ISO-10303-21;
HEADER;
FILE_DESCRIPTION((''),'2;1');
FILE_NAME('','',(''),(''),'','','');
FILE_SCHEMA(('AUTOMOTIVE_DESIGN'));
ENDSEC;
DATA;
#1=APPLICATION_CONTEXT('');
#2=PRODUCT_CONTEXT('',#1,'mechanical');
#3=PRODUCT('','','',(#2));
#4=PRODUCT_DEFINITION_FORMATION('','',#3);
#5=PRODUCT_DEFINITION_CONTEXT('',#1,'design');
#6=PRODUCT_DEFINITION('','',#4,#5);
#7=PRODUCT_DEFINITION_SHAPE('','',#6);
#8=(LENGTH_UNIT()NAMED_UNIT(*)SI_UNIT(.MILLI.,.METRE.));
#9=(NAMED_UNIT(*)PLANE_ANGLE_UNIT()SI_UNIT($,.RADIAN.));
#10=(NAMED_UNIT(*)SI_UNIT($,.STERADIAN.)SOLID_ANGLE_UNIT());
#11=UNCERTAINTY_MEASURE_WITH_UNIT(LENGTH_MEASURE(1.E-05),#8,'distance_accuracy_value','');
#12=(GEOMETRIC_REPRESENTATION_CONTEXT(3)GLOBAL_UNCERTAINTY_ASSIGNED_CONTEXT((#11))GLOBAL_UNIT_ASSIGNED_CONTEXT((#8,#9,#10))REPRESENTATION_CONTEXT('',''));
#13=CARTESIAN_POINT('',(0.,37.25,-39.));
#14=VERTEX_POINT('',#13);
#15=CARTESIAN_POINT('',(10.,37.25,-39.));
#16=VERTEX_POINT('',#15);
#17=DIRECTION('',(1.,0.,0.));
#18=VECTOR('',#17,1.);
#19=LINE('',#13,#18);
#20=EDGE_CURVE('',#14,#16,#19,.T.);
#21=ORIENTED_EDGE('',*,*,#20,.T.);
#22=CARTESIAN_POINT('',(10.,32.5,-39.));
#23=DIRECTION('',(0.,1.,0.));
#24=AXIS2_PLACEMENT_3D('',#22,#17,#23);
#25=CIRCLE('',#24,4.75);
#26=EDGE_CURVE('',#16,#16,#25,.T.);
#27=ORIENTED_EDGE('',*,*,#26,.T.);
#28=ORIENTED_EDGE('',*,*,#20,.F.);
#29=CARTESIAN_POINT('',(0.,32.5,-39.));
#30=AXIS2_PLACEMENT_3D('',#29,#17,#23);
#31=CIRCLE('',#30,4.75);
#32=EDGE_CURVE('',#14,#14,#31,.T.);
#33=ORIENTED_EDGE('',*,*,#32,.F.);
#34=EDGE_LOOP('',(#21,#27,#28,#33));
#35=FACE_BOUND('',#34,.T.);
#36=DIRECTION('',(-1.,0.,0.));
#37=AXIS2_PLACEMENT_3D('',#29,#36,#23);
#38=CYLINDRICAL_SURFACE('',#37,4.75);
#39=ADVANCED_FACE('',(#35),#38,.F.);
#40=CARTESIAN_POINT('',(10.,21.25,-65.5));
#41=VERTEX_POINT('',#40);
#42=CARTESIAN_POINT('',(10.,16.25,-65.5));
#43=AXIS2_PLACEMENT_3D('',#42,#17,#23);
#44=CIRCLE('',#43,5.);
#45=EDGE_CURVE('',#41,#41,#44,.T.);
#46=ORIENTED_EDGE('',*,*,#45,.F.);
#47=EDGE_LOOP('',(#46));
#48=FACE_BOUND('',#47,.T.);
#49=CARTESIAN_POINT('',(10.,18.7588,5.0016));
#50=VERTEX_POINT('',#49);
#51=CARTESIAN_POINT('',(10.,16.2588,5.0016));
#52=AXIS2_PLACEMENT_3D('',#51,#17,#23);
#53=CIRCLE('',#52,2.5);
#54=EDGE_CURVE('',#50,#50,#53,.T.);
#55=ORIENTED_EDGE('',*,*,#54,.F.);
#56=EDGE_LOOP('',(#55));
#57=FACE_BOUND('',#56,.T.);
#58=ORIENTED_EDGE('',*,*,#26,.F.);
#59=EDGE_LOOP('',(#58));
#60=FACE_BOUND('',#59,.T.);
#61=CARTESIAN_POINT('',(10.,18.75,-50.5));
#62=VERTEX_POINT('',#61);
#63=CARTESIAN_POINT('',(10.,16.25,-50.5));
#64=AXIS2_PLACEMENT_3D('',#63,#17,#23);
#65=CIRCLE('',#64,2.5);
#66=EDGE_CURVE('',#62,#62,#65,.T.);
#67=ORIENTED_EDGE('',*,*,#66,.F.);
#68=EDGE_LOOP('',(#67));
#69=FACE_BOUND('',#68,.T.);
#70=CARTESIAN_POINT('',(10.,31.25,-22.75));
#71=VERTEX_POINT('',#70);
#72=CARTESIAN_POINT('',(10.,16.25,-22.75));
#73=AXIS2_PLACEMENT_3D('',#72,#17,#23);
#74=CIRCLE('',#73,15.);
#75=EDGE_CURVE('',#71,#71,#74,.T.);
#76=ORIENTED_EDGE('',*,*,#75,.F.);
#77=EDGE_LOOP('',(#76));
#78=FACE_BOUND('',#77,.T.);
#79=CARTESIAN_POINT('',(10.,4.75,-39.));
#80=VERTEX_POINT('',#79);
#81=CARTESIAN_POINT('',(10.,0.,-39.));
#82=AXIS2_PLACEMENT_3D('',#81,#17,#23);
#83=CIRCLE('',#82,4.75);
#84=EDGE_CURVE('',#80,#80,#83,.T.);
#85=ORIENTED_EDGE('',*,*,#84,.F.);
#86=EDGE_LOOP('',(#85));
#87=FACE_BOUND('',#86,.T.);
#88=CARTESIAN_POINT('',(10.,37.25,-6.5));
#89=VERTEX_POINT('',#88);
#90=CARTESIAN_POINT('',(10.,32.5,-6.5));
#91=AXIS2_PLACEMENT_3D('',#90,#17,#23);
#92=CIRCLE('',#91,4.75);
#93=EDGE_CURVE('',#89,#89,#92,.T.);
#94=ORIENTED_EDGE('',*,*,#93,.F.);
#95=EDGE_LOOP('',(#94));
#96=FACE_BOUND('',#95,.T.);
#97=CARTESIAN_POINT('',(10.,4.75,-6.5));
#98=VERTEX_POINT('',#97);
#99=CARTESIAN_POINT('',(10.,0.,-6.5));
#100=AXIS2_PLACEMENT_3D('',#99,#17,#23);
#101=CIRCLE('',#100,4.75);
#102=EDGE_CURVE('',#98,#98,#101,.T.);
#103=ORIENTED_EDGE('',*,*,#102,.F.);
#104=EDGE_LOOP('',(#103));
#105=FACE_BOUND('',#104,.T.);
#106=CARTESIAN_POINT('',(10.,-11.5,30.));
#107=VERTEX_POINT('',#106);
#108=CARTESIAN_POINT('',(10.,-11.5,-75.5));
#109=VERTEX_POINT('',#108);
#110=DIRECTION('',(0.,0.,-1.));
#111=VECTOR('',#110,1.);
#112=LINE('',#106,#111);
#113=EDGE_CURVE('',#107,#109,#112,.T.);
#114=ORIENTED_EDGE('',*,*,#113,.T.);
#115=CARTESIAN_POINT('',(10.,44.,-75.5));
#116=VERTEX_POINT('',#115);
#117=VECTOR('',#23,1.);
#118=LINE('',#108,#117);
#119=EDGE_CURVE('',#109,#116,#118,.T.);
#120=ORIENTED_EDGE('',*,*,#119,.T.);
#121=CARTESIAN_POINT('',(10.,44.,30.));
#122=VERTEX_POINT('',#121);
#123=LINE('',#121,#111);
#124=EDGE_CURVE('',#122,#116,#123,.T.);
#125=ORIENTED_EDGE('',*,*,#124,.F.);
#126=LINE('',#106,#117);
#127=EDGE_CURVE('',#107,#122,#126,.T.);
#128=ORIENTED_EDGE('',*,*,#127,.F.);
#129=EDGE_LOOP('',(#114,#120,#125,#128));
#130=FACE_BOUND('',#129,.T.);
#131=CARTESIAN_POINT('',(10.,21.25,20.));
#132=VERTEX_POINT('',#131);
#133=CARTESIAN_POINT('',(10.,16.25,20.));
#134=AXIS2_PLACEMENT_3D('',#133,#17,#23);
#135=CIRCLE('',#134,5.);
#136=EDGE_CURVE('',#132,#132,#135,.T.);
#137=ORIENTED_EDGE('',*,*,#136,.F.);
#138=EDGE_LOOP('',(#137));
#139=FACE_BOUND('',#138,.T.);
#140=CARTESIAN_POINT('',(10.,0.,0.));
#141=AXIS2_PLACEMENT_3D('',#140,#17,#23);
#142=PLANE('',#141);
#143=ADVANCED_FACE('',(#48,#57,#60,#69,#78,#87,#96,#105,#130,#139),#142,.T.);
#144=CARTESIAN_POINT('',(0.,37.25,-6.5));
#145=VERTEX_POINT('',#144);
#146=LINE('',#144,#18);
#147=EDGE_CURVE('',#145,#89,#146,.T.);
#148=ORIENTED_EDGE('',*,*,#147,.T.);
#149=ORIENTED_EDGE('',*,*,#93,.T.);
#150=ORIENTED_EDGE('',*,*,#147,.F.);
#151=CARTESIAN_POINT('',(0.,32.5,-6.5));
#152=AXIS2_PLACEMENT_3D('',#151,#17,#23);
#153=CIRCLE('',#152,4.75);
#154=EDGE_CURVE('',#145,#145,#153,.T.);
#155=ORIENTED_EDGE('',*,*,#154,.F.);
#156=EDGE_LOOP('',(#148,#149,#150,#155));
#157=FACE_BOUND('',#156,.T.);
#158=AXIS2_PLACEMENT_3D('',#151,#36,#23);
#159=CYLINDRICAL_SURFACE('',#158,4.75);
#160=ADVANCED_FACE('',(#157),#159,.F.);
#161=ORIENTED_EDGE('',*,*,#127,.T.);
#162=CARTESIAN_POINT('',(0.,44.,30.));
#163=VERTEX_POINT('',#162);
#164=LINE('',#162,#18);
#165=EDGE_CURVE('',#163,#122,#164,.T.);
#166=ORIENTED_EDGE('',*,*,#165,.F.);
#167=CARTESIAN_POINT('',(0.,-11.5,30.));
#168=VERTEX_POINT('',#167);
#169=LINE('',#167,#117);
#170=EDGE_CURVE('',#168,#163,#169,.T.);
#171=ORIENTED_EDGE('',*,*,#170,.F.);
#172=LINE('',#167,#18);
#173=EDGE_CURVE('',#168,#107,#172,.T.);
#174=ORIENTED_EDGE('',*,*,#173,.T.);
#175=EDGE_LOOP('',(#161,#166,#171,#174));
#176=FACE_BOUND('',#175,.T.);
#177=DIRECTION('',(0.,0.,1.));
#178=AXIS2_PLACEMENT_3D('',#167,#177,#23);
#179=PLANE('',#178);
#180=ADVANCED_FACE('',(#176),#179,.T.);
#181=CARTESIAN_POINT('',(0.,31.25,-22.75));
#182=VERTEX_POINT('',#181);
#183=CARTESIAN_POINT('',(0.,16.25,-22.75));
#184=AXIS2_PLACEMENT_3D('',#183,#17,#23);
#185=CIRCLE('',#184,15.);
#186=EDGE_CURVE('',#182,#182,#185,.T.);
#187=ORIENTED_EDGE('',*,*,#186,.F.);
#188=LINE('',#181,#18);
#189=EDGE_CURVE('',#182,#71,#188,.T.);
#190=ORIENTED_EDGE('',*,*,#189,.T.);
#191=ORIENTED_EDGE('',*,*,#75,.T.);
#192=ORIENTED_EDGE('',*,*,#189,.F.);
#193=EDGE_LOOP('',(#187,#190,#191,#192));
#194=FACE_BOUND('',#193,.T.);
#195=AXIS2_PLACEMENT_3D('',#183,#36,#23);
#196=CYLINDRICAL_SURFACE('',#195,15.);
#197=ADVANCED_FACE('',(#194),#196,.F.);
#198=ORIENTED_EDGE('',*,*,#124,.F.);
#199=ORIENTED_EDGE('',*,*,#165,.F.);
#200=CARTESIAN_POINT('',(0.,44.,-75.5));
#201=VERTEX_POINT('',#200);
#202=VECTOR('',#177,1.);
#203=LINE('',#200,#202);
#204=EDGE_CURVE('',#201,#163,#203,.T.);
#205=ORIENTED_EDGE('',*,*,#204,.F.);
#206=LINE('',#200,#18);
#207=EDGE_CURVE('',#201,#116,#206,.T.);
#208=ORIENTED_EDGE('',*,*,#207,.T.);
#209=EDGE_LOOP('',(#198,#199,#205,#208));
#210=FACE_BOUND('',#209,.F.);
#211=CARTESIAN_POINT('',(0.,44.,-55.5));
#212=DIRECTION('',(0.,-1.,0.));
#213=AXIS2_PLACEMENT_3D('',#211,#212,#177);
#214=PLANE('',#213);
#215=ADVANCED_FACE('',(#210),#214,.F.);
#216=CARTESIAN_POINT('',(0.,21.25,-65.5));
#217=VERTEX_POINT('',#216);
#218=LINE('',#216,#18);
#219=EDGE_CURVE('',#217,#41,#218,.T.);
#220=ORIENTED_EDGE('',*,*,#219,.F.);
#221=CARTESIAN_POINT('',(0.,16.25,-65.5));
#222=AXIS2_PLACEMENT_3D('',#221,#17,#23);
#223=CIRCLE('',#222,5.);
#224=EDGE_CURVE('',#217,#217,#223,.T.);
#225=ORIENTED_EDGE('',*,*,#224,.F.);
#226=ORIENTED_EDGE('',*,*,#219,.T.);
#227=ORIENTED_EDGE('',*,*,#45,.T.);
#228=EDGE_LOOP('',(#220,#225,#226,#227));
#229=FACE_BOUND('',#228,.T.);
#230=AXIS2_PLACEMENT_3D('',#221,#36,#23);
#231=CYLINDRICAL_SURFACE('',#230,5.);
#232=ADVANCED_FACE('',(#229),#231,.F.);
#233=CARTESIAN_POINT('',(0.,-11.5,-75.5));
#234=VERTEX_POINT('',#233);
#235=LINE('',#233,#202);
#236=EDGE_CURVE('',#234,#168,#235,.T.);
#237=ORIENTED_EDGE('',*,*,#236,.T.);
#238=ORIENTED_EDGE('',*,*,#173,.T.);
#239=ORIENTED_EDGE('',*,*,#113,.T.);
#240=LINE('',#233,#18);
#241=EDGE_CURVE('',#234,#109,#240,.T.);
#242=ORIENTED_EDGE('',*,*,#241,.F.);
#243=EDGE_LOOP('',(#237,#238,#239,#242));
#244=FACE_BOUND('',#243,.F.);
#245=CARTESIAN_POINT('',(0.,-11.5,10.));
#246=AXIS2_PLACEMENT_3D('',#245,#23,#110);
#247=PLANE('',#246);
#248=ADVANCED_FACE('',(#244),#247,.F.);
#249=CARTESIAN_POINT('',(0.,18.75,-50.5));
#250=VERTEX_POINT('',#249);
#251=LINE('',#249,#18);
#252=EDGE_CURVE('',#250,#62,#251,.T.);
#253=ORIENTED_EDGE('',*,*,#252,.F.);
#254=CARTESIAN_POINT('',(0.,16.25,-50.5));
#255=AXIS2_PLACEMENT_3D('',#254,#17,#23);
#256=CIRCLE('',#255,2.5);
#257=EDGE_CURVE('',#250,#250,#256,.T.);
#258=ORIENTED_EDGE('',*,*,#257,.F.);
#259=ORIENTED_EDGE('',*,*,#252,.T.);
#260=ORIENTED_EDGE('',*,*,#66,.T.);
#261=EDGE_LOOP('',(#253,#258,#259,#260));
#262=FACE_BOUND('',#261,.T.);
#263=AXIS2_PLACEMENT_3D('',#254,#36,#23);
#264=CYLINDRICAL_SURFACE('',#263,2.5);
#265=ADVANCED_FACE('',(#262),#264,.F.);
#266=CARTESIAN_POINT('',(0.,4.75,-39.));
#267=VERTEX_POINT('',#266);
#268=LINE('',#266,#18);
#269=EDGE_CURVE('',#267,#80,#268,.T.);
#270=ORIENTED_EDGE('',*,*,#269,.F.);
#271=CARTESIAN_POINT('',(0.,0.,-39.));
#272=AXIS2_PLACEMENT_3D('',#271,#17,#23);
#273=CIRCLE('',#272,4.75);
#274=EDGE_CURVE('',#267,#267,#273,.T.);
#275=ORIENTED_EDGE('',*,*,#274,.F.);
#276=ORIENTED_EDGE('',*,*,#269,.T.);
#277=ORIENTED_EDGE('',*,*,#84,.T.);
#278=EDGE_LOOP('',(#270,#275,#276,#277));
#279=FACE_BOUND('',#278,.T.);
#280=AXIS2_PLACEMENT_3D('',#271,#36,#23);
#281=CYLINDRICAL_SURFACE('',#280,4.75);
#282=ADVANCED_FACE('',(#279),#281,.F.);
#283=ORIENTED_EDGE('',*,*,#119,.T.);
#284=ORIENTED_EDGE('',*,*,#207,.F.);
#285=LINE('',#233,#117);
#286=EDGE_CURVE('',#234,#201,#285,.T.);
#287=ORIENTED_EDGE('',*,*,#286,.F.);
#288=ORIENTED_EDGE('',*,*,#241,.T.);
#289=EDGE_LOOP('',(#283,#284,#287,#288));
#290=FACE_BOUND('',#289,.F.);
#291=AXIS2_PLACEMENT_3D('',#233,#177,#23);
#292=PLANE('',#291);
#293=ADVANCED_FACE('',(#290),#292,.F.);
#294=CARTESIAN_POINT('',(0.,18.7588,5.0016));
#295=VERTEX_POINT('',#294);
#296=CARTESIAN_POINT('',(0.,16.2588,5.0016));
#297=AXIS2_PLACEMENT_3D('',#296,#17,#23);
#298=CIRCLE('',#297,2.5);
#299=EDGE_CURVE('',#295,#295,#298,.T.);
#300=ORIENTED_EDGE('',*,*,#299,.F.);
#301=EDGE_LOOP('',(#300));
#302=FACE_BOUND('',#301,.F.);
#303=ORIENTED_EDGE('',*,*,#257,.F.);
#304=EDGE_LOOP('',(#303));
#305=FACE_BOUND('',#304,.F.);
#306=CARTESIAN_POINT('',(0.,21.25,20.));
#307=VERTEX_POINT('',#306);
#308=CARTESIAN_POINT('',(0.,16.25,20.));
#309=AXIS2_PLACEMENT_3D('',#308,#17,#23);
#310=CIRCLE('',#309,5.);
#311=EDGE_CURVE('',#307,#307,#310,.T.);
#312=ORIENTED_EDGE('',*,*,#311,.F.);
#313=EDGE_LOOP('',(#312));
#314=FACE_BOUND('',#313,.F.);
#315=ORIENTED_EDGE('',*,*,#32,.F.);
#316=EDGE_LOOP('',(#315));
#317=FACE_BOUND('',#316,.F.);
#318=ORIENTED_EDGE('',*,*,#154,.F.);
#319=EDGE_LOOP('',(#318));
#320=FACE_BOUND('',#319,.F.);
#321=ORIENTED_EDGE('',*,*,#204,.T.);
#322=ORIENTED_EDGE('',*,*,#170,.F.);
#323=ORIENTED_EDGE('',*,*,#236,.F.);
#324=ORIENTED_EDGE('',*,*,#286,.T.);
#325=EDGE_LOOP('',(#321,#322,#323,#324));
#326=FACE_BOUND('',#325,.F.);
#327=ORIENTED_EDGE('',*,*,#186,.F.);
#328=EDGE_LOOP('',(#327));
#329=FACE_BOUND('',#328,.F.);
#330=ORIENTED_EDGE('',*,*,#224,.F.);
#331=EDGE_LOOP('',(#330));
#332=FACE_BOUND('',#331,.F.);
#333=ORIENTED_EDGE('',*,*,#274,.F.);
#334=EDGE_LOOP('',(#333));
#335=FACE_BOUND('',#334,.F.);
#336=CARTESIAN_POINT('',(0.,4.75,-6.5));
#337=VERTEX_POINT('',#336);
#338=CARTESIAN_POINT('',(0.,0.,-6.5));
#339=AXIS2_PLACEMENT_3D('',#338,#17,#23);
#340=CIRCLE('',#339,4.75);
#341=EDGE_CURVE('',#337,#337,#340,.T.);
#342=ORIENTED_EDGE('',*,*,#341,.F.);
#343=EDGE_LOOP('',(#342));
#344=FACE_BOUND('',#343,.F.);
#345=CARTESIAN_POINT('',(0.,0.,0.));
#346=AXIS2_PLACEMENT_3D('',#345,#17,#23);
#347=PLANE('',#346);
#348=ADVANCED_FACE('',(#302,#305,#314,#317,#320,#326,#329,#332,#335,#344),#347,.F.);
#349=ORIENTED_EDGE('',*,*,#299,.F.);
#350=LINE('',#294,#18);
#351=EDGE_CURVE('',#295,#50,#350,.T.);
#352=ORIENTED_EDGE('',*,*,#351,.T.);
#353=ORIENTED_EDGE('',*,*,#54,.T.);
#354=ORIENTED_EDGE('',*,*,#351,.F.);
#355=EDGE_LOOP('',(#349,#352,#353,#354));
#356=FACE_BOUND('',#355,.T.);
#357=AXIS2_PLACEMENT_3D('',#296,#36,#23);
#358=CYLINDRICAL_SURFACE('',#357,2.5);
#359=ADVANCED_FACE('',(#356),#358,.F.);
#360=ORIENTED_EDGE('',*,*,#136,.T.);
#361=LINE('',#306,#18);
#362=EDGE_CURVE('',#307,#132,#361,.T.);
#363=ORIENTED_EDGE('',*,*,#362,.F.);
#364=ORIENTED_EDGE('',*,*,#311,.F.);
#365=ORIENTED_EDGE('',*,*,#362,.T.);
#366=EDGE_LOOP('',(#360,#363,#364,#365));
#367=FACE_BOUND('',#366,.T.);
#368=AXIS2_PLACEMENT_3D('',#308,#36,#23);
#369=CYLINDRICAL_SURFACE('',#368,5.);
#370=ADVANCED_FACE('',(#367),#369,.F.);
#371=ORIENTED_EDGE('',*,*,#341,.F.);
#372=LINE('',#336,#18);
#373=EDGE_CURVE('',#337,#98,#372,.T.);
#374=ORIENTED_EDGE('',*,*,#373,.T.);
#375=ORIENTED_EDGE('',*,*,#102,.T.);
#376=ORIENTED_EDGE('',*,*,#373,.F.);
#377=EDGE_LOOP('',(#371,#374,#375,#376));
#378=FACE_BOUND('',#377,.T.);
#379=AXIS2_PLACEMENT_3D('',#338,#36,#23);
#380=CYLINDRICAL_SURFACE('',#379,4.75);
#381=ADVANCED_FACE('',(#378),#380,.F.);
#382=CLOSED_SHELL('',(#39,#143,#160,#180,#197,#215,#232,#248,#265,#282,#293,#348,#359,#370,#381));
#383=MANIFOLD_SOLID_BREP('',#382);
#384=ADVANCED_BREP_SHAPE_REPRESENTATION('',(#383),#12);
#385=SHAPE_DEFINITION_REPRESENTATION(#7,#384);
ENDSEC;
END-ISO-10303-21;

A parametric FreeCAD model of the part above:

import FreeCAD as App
import Part
import Sketcher

V = App.Vector

doc = App.newDocument("Part")
body = doc.addObject("PartDesign::Body", "Body")

sketch1 = body.newObject("Sketcher::SketchObject", "Sketch")
sketch1.AttachmentSupport = (doc.getObject("YZ_Plane"), [""])
sketch1.MapMode = "FlatFace"
sketch1.addGeometry(Part.LineSegment(V(44, 30, 0), V(-11.5, 30, 0)), False)
sketch1.addGeometry(Part.LineSegment(V(-11.5, 30, 0), V(-11.5, -75.5, 0)), False)
sketch1.addGeometry(Part.LineSegment(V(-11.5, -75.5, 0), V(44, -75.5, 0)), False)
sketch1.addGeometry(Part.LineSegment(V(44, -75.5, 0), V(44, 30, 0)), False)
sketch1.addGeometry(Part.Circle(V(0, -39, 0), V(0, 0, 1), 4.75), False)
sketch1.addGeometry(Part.Circle(V(16.25, -50.5, 0), V(0, 0, 1), 2.5), False)
sketch1.addGeometry(Part.Circle(V(32.5, -39, 0), V(0, 0, 1), 4.75), False)
sketch1.addGeometry(Part.Circle(V(0, -6.5, 0), V(0, 0, 1), 4.75), False)
sketch1.addGeometry(Part.Circle(V(16.25, -22.75, 0), V(0, 0, 1), 15), False)
sketch1.addGeometry(Part.Circle(V(32.5, -6.5, 0), V(0, 0, 1), 4.75), False)
sketch1.addGeometry(Part.Circle(V(16.2588, 5.0016, 0), V(0, 0, 1), 2.5), False)
sketch1.addGeometry(Part.Circle(V(16.25, -65.5, 0), V(0, 0, 1), 5), False)
sketch1.addGeometry(Part.Circle(V(16.25, 20, 0), V(0, 0, 1), 5), False)
sketch1.addConstraint(Sketcher.Constraint("Coincident", 0, 2, 1, 1))
sketch1.addConstraint(Sketcher.Constraint("Coincident", 1, 2, 2, 1))
sketch1.addConstraint(Sketcher.Constraint("Coincident", 2, 2, 3, 1))
sketch1.addConstraint(Sketcher.Constraint("Coincident", 3, 2, 0, 1))
sketch1.addConstraint(Sketcher.Constraint("Horizontal", 0))
sketch1.addConstraint(Sketcher.Constraint("Vertical", 1))
sketch1.addConstraint(Sketcher.Constraint("Horizontal", 2))
sketch1.addConstraint(Sketcher.Constraint("Vertical", 3))
sketch1.addConstraint(Sketcher.Constraint("Equal", 4, 6))
sketch1.addConstraint(Sketcher.Constraint("Equal", 6, 7))
sketch1.addConstraint(Sketcher.Constraint("Equal", 7, 9))
sketch1.addConstraint(Sketcher.Constraint("Equal", 5, 10))
sketch1.addConstraint(Sketcher.Constraint("Equal", 11, 12))
sketch1.addConstraint(Sketcher.Constraint("PointOnObject", 4, 3, -2))
sketch1.addConstraint(Sketcher.Constraint("PointOnObject", 7, 3, -2))
sketch1.addConstraint(Sketcher.Constraint("Horizontal", 4, 3, 6, 3))
sketch1.addConstraint(Sketcher.Constraint("Horizontal", 7, 3, 9, 3))
sketch1.addConstraint(Sketcher.Constraint("Vertical", 5, 3, 8, 3))
sketch1.addConstraint(Sketcher.Constraint("Vertical", 6, 3, 9, 3))
sketch1.addConstraint(Sketcher.Constraint("Vertical", 8, 3, 11, 3))
sketch1.addConstraint(Sketcher.Constraint("Vertical", 11, 3, 12, 3))
sketch1.addConstraint(Sketcher.Constraint("Diameter", 11, 10.0))
sketch1.addConstraint(Sketcher.Constraint("Diameter", 5, 5.0))
sketch1.addConstraint(Sketcher.Constraint("Diameter", 8, 30.0))
sketch1.addConstraint(Sketcher.Constraint("DistanceY", -1, 1, 12, 3, 20.0))
sketch1.addConstraint(Sketcher.Constraint("DistanceY", 12, 3, 0, 2, 10.0))
sketch1.addConstraint(Sketcher.Constraint("DistanceY", 1, 2, 11, 3, 10.0))
sketch1.addConstraint(Sketcher.Constraint("Diameter", 4, 9.5))
sketch1.addConstraint(Sketcher.Constraint("DistanceX", 0, 2, 0, 1, 55.5))
sketch1.addConstraint(Sketcher.Constraint("DistanceY", 1, 2, 1, 1, 105.5))
sketch1.addConstraint(Sketcher.Constraint("DistanceY", 4, 3, -1, 1, 39.0))
sketch1.addConstraint(Sketcher.Constraint("DistanceX", -1, 1, 2, 2, 44.0))
sketch1.addConstraint(Sketcher.Constraint("DistanceY", 5, 3, 7, 3, 44.0))
sketch1.addConstraint(Sketcher.Constraint("DistanceY", 11, 3, 5, 3, 15.0))
sketch1.addConstraint(Sketcher.Constraint("DistanceX", 0, 2, 9, 3, 44.0))
sketch1.addConstraint(Sketcher.Constraint("DistanceX", -1, 1, 5, 3, 16.25))
sketch1.addConstraint(Sketcher.Constraint("DistanceY", 8, 3, -1, 1, 22.75))
sketch1.addConstraint(Sketcher.Constraint("DistanceX", -1, 1, 10, 3, 16.2588))
sketch1.addConstraint(Sketcher.Constraint("DistanceY", -1, 1, 10, 3, 5.0016))
pad1 = body.newObject("PartDesign::Pad", "Pad")
pad1.Profile = sketch1
pad1.Length = 10

doc.recompute()
